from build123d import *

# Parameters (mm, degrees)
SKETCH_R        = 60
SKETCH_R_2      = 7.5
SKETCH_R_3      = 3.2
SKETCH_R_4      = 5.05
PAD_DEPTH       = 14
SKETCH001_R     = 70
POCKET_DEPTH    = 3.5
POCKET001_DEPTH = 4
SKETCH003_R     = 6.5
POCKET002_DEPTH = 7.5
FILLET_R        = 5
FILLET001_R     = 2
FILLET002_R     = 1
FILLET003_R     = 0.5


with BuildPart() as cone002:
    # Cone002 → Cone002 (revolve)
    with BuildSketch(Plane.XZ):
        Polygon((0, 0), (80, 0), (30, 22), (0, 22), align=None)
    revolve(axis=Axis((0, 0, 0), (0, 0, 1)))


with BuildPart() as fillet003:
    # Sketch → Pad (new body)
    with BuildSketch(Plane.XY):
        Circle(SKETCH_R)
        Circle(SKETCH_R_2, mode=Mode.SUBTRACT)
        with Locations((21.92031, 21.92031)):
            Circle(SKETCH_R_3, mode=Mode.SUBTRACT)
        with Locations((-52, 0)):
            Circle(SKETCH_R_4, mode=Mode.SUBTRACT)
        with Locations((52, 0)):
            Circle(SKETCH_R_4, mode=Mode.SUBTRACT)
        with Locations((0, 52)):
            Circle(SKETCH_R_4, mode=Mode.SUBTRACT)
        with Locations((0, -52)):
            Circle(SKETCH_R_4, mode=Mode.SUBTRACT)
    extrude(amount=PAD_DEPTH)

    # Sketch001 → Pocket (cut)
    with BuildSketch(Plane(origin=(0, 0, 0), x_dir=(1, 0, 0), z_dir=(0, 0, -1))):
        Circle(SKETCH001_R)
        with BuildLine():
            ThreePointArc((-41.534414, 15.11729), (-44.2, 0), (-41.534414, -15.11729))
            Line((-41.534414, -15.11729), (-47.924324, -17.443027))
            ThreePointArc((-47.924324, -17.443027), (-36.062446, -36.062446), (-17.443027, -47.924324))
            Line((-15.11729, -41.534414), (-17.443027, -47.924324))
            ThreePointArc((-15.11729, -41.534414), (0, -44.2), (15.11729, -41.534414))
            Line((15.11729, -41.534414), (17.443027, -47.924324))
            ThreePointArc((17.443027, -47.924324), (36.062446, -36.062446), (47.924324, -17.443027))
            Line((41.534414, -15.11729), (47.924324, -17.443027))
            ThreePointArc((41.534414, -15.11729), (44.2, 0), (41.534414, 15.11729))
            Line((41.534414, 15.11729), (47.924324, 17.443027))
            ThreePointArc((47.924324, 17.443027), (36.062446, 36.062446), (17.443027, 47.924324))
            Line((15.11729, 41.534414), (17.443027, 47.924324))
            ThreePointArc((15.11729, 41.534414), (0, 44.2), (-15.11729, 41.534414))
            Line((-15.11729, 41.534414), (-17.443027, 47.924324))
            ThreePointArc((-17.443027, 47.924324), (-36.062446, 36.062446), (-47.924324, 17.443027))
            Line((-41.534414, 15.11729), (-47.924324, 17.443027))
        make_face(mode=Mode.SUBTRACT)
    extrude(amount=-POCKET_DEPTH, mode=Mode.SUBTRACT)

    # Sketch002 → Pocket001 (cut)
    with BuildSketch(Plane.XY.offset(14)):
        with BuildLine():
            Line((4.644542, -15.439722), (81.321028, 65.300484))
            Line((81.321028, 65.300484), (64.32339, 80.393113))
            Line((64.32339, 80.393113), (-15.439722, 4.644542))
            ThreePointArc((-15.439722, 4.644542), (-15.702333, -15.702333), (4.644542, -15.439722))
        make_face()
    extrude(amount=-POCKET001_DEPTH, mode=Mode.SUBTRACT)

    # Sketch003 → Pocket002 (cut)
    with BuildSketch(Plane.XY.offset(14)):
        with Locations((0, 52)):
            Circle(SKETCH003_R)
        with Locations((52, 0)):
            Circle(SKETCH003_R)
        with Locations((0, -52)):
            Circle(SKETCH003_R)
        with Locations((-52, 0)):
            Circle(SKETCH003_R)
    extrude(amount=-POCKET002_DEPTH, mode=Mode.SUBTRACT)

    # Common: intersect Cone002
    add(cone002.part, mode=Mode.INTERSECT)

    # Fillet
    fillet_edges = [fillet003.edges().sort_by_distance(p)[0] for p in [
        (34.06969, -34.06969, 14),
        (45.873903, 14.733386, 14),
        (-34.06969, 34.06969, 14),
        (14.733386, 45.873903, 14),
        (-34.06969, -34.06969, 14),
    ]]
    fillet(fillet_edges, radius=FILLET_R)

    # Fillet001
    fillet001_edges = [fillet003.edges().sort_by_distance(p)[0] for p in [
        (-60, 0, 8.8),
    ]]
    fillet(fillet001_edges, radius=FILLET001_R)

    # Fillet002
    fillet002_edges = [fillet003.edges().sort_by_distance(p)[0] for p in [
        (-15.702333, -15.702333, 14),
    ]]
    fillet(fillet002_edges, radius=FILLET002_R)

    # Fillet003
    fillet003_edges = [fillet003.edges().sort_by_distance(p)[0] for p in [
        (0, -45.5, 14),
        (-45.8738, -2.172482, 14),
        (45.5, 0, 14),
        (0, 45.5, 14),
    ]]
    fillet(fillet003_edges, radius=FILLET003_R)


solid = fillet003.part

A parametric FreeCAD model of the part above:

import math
import FreeCAD as App
import Part
import Sketcher
from FreeCAD import Vector
Q = App.Units.Quantity


def edges_at(feature, points):
    """Names of the edges that pass closest to the given points."""
    edges = feature.Shape.Edges
    near = lambda p: min(range(len(edges)), key=lambda i: edges[i].distToShape(Part.Vertex(*p))[0])
    return sorted({f"Edge{near(p) + 1}" for p in points})


def add_polygon(sketch, points):
    """Adds a closed chain of lines whose ends are joined by coincident constraints."""
    first, n = sketch.GeometryCount, len(points)
    for a, b in zip(points, points[1:] + points[:1]):
        sketch.addGeometry(Part.LineSegment(App.Vector(*a, 0), App.Vector(*b, 0)), False)
    for i in range(n):
        sketch.addConstraint(Sketcher.Constraint("Coincident", first + i, 2, first + (i + 1) % n, 1))

doc = App.newDocument("Part")
body = doc.addObject("PartDesign::Body", "Body")

# Sketch on XZ plane
sketch1 = doc.addObject("Sketcher::SketchObject", "Sketch")
body.addObject(sketch1)
sketch1.AttachmentSupport = (doc.XZ_Plane, [""])
sketch1.MapMode = "FlatFace"
add_polygon(sketch1, [(0, 0), (80, 0), (30, 22), (0, 22)])  # lines 0-3
sketch1.addConstraint(Sketcher.Constraint("Horizontal", 0))
sketch1.addConstraint(Sketcher.Constraint("Horizontal", 2))
sketch1.addConstraint(Sketcher.Constraint("Vertical", 3))
sketch1.addConstraint(Sketcher.Constraint("Coincident", 3, 2, -1, 1))
sketch1.addConstraint(Sketcher.Constraint("DistanceX", 0, 1, 0, 2, Q("80 mm")))
sketch1.addConstraint(Sketcher.Constraint("DistanceX", 2, 2, 2, 1, Q("30 mm")))
sketch1.addConstraint(Sketcher.Constraint("DistanceY", 3, 2, 3, 1, Q("22 mm")))
revolution = doc.addObject("PartDesign::Revolution", "Revolution")
body.addObject(revolution)
revolution.Profile = sketch1
revolution.ReferenceAxis = (sketch1, ["V_Axis"])
revolution.Angle = 360
body2 = doc.addObject("PartDesign::Body", "Body001")

# Sketch on XY plane
sketch2 = doc.addObject("Sketcher::SketchObject", "Sketch001")
body2.addObject(sketch2)
sketch2.AttachmentSupport = (doc.getObject("XY_Plane001"), [""])
sketch2.MapMode = "FlatFace"
sketch2.addGeometry(Part.Circle(Vector(0, 0, 0), Vector(0, 0, 1), 60), False)
sketch2.addGeometry(Part.Circle(Vector(0, -52, 0), Vector(0, 0, 1), 5), False)
sketch2.addGeometry(Part.Circle(Vector(-52, 0, 0), Vector(0, 0, 1), 5), False)
sketch2.addGeometry(Part.Circle(Vector(0, 0, 0), Vector(0, 0, 1), 7.5), False)
sketch2.addGeometry(Part.Circle(Vector(21.9, 21.9, 0), Vector(0, 0, 1), 3.2), False)
sketch2.addGeometry(Part.Circle(Vector(52, 0, 0), Vector(0, 0, 1), 5), False)
sketch2.addGeometry(Part.Circle(Vector(0, 52, 0), Vector(0, 0, 1), 5), False)
sketch2.addConstraint(Sketcher.Constraint("Coincident", 0, 3, -1, 1))
sketch2.addConstraint(Sketcher.Constraint("Coincident", 3, 3, -1, 1))
sketch2.addConstraint(Sketcher.Constraint("Equal", 1, 2))
sketch2.addConstraint(Sketcher.Constraint("Equal", 2, 5))
sketch2.addConstraint(Sketcher.Constraint("Equal", 5, 6))
sketch2.addConstraint(Sketcher.Constraint("Symmetric", 2, 3, 5, 3, -1, 1))
sketch2.addConstraint(Sketcher.Constraint("Symmetric", 1, 3, 6, 3, -1, 1))
sketch2.addConstraint(Sketcher.Constraint("PointOnObject", 1, 3, -2))
sketch2.addConstraint(Sketcher.Constraint("PointOnObject", 2, 3, -1))
sketch2.addConstraint(Sketcher.Constraint("Diameter", 0, Q("120 mm")))
sketch2.addConstraint(Sketcher.Constraint("Diameter", 3, Q("15 mm")))
sketch2.addConstraint(Sketcher.Constraint("Diameter", 1, Q("10.1 mm")))
sketch2.addConstraint(Sketcher.Constraint("Diameter", 4, Q("6.4 mm")))
sketch2.addConstraint(Sketcher.Constraint("DistanceY", 1, 3, -1, 1, Q("52 mm")))
sketch2.addConstraint(Sketcher.Constraint("DistanceX", 2, 3, -1, 1, Q("52 mm")))
sketch2.addConstraint(Sketcher.Constraint("DistanceX", -1, 1, 4, 3, Q("21.92031 mm")))
sketch2.addConstraint(Sketcher.Constraint("DistanceY", -1, 1, 4, 3, Q("21.92031 mm")))
pad1 = doc.addObject("PartDesign::Pad", "Pad")
body2.addObject(pad1)
pad1.Profile = sketch2
pad1.Length = 14

# Sketch on XY plane
sketch3 = doc.addObject("Sketcher::SketchObject", "Sketch002")
body2.addObject(sketch3)
sketch3.AttachmentSupport = (doc.getObject("XY_Plane001"), [""])
sketch3.MapMode = "FlatFace"
sketch3.addGeometry(Part.Circle(Vector(0, 0, 0), Vector(0, 0, 1), 70), False)
sketch3.addGeometry(Part.ArcOfCircle(Part.Circle(Vector(0, 0, 0), Vector(0, 0, 1), 44), math.radians(160), math.radians(200)), False)
sketch3.addGeometry(Part.LineSegment(Vector(-42, -15, 0), Vector(-48, -17, 0)), False)
sketch3.addGeometry(Part.ArcOfCircle(Part.Circle(Vector(0, 0, 0), Vector(0, 0, 1), 51), math.radians(-160), math.radians(-110)), False)
sketch3.addGeometry(Part.LineSegment(Vector(-17, -48, 0), Vector(-15, -42, 0)), False)
sketch3.addGeometry(Part.ArcOfCircle(Part.Circle(Vector(0, 0, 0), Vector(0, 0, 1), 44), math.radians(-110), math.radians(-70)), False)
sketch3.addGeometry(Part.LineSegment(Vector(15, -42, 0), Vector(17, -48, 0)), False)
sketch3.addGeometry(Part.ArcOfCircle(Part.Circle(Vector(0, 0, 0), Vector(0, 0, 1), 51), math.radians(-70), math.radians(-20)), False)
sketch3.addGeometry(Part.LineSegment(Vector(48, -17, 0), Vector(42, -15, 0)), False)
sketch3.addGeometry(Part.ArcOfCircle(Part.Circle(Vector(0, 0, 0), Vector(0, 0, 1), 44), math.radians(-20), math.radians(20)), False)
sketch3.addGeometry(Part.LineSegment(Vector(42, 15, 0), Vector(48, 17, 0)), False)
sketch3.addGeometry(Part.ArcOfCircle(Part.Circle(Vector(0, 0, 0), Vector(0, 0, 1), 51), math.radians(20), math.radians(70)), False)
sketch3.addGeometry(Part.LineSegment(Vector(17, 48, 0), Vector(15, 42, 0)), False)
sketch3.addGeometry(Part.ArcOfCircle(Part.Circle(Vector(0, 0, 0), Vector(0, 0, 1), 44), math.radians(70), math.radians(110)), False)
sketch3.addGeometry(Part.LineSegment(Vector(-15, 42, 0), Vector(-17, 48, 0)), False)
sketch3.addGeometry(Part.ArcOfCircle(Part.Circle(Vector(0, 0, 0), Vector(0, 0, 1), 51), math.radians(110), math.radians(160)), False)
sketch3.addGeometry(Part.LineSegment(Vector(-48, 17, 0), Vector(-42, 15, 0)), False)
sketch3.addConstraint(Sketcher.Constraint("Coincident", 1, 2, 2, 1))
sketch3.addConstraint(Sketcher.Constraint("Coincident", 2, 2, 3, 1))
sketch3.addConstraint(Sketcher.Constraint("Coincident", 3, 2, 4, 1))
sketch3.addConstraint(Sketcher.Constraint("Coincident", 4, 2, 5, 1))
sketch3.addConstraint(Sketcher.Constraint("Coincident", 5, 2, 6, 1))
sketch3.addConstraint(Sketcher.Constraint("Coincident", 6, 2, 7, 1))
sketch3.addConstraint(Sketcher.Constraint("Coincident", 7, 2, 8, 1))
sketch3.addConstraint(Sketcher.Constraint("Coincident", 8, 2, 9, 1))
sketch3.addConstraint(Sketcher.Constraint("Coincident", 9, 2, 10, 1))
sketch3.addConstraint(Sketcher.Constraint("Coincident", 10, 2, 11, 1))
sketch3.addConstraint(Sketcher.Constraint("Coincident", 11, 2, 12, 1))
sketch3.addConstraint(Sketcher.Constraint("Coincident", 12, 2, 13, 1))
sketch3.addConstraint(Sketcher.Constraint("Coincident", 13, 2, 14, 1))
sketch3.addConstraint(Sketcher.Constraint("Coincident", 14, 2, 15, 1))
sketch3.addConstraint(Sketcher.Constraint("Coincident", 15, 2, 16, 1))
sketch3.addConstraint(Sketcher.Constraint("Coincident", 16, 2, 1, 1))
sketch3.addConstraint(Sketcher.Constraint("Coincident", 0, 3, -1, 1))
sketch3.addConstraint(Sketcher.Constraint("Coincident", 1, 3, -1, 1))
sketch3.addConstraint(Sketcher.Constraint("Coincident", 3, 3, -1, 1))
sketch3.addConstraint(Sketcher.Constraint("Coincident", 5, 3, -1, 1))
sketch3.addConstraint(Sketcher.Constraint("Coincident", 7, 3, -1, 1))
sketch3.addConstraint(Sketcher.Constraint("Coincident", 9, 3, -1, 1))
sketch3.addConstraint(Sketcher.Constraint("Coincident", 11, 3, -1, 1))
sketch3.addConstraint(Sketcher.Constraint("Coincident", 13, 3, -1, 1))
sketch3.addConstraint(Sketcher.Constraint("Coincident", 15, 3, -1, 1))
sketch3.addConstraint(Sketcher.Constraint("Equal", 1, 5))
sketch3.addConstraint(Sketcher.Constraint("Equal", 3, 7))
sketch3.addConstraint(Sketcher.Constraint("Equal", 5, 9))
sketch3.addConstraint(Sketcher.Constraint("Equal", 7, 11))
sketch3.addConstraint(Sketcher.Constraint("Equal", 9, 13))
sketch3.addConstraint(Sketcher.Constraint("Equal", 11, 15))
sketch3.addConstraint(Sketcher.Constraint("Perpendicular", 2, 6))
sketch3.addConstraint(Sketcher.Constraint("Perpendicular", 4, 8))
sketch3.addConstraint(Sketcher.Constraint("Perpendicular", 6, 10))
sketch3.addConstraint(Sketcher.Constraint("Perpendicular", 8, 12))
sketch3.addConstraint(Sketcher.Constraint("Perpendicular", 10, 14))
sketch3.addConstraint(Sketcher.Constraint("Perpendicular", 12, 16))
sketch3.addConstraint(Sketcher.Constraint("Horizontal", 4, 2, 5, 2))
sketch3.addConstraint(Sketcher.Constraint("Horizontal", 3, 2, 6, 2))
sketch3.addConstraint(Sketcher.Constraint("Horizontal", 2, 2, 7, 2))
sketch3.addConstraint(Sketcher.Constraint("Horizontal", 12, 2, 13, 2))
sketch3.addConstraint(Sketcher.Constraint("Horizontal", 10, 2, 15, 2))
sketch3.addConstraint(Sketcher.Constraint("Vertical", 8, 2, 9, 2))
sketch3.addConstraint(Sketcher.Constraint("Vertical", 6, 2, 11, 2))
sketch3.addConstraint(Sketcher.Constraint("Diameter", 0, Q("140 mm")))
sketch3.addConstraint(Sketcher.Constraint("Radius", 3, Q("51 mm")))
sketch3.addConstraint(Sketcher.Constraint("Radius", 1, Q("44.200001 mm")))
sketch3.addConstraint(Sketcher.Constraint("Angle", 2, Q("-160 deg")))
sketch3.addConstraint(Sketcher.Constraint("DistanceY", 1, 2, -1, 1, Q("15.11729 mm")))
sketch3.addConstraint(Sketcher.Constraint("DistanceX", 4, 2, -1, 1, Q("15.11729 mm")))
pocket1 = doc.addObject("PartDesign::Pocket", "Pocket")
body2.addObject(pocket1)
pocket1.Profile = sketch3
pocket1.Length = 3.5
pocket1.Reversed = True

# Sketch on XY plane
sketch4 = doc.addObject("Sketcher::SketchObject", "Sketch003")
body2.addObject(sketch4)
sketch4.AttachmentSupport = (doc.getObject("XY_Plane001"), [""])
sketch4.MapMode = "FlatFace"
sketch4.AttachmentOffset = App.Placement(Vector(0, 0, 14), App.Rotation())
sketch4.addGeometry(Part.LineSegment(Vector(5, -15, 0), Vector(81, 65, 0)), False)
sketch4.addGeometry(Part.LineSegment(Vector(81, 65, 0), Vector(64, 80, 0)), False)
sketch4.addGeometry(Part.LineSegment(Vector(64, 80, 0), Vector(-15, 5, 0)), False)
sketch4.addGeometry(Part.ArcOfCircle(Part.Circle(Vector(-6, -6, 0), Vector(0, 0, 1), 14), math.radians(134), math.radians(316)), False)
sketch4.addConstraint(Sketcher.Constraint("Coincident", 0, 2, 1, 1))
sketch4.addConstraint(Sketcher.Constraint("Coincident", 1, 2, 2, 1))
sketch4.addConstraint(Sketcher.Constraint("Coincident", 2, 2, 3, 1))
sketch4.addConstraint(Sketcher.Constraint("Coincident", 3, 2, 0, 1))
sketch4.addConstraint(Sketcher.Constraint("Distance", 2, Q("110 mm")))
sketch4.addConstraint(Sketcher.Constraint("Radius", 3, Q("14.206452 mm")))
sketch4.addConstraint(Sketcher.Constraint("DistanceX", -1, 1, 0, 2, Q("81.321028 mm")))
sketch4.addConstraint(Sketcher.Constraint("DistanceX", -1, 1, 1, 2, Q("64.32339 mm")))
sketch4.addConstraint(Sketcher.Constraint("DistanceY", 3, 3, 0, 2, Q("70.957339 mm")))
sketch4.addConstraint(Sketcher.Constraint("DistanceY", 0, 2, 1, 2, Q("15.092629 mm")))
sketch4.addConstraint(Sketcher.Constraint("DistanceY", 2, 2, 1, 2, Q("75.748571 mm")))
sketch4.addConstraint(Sketcher.Constraint("Distance", 0, Q("111.347494 mm")))
sketch4.addConstraint(Sketcher.Constraint("DistanceY", 3, 3, -1, 1, Q("5.656855 mm")))
pocket2 = doc.addObject("PartDesign::Pocket", "Pocket001")
body2.addObject(pocket2)
pocket2.Profile = sketch4
pocket2.Length = 4

# Sketch on XY plane
sketch5 = doc.addObject("Sketcher::SketchObject", "Sketch004")
body2.addObject(sketch5)
sketch5.AttachmentSupport = (doc.getObject("XY_Plane001"), [""])
sketch5.MapMode = "FlatFace"
sketch5.AttachmentOffset = App.Placement(Vector(0, 0, 14), App.Rotation())
sketch5.addGeometry(Part.Circle(Vector(0, 52, 0), Vector(0, 0, 1), 6), False)
sketch5.addGeometry(Part.Circle(Vector(52, 0, 0), Vector(0, 0, 1), 6), False)
sketch5.addGeometry(Part.Circle(Vector(0, -52, 0), Vector(0, 0, 1), 6), False)
sketch5.addGeometry(Part.Circle(Vector(-52, 0, 0), Vector(0, 0, 1), 6), False)
sketch5.addConstraint(Sketcher.Constraint("Equal", 0, 1))
sketch5.addConstraint(Sketcher.Constraint("Equal", 1, 2))
sketch5.addConstraint(Sketcher.Constraint("Equal", 2, 3))
sketch5.addConstraint(Sketcher.Constraint("Symmetric", 0, 3, 2, 3, -1, 1))
sketch5.addConstraint(Sketcher.Constraint("Symmetric", 1, 3, 3, 3, -1, 1))
sketch5.addConstraint(Sketcher.Constraint("PointOnObject", 0, 3, -2))
sketch5.addConstraint(Sketcher.Constraint("PointOnObject", 1, 3, -1))
sketch5.addConstraint(Sketcher.Constraint("Diameter", 0, Q("13 mm")))
sketch5.addConstraint(Sketcher.Constraint("DistanceY", -1, 1, 0, 3, Q("52 mm")))
sketch5.addConstraint(Sketcher.Constraint("DistanceX", -1, 1, 1, 3, Q("52 mm")))
pocket3 = doc.addObject("PartDesign::Pocket", "Pocket002")
body2.addObject(pocket3)
pocket3.Profile = sketch5
pocket3.Length = 7.5
doc.recompute()

boolean = doc.addObject("PartDesign::Boolean", "Boolean")
body2.addObject(boolean)
boolean.Type = "Common"
boolean.addObjects([body])
doc.recompute()

fillet = doc.addObject("PartDesign::Fillet", "Fillet")
body2.addObject(fillet)
fillet.Base = (boolean, edges_at(boolean, [
    (34.07, -34.07, 14),
    (45.874, 14.733, 14),
    (-34.07, 34.07, 14),
    (14.733, 45.874, 14),
    (-34.07, -34.07, 14),
]))
fillet.Radius = 5
doc.recompute()

fillet2 = doc.addObject("PartDesign::Fillet", "Fillet001")
body2.addObject(fillet2)
fillet2.Base = (fillet, edges_at(fillet, [(-60, 0, 8.8)]))
fillet2.Radius = 2
doc.recompute()

fillet3 = doc.addObject("PartDesign::Fillet", "Fillet002")
body2.addObject(fillet3)
fillet3.Base = (fillet2, edges_at(fillet2, [(-15.702, -15.702, 14)]))
fillet3.Radius = 1
doc.recompute()

fillet4 = doc.addObject("PartDesign::Fillet", "Fillet003")
body2.addObject(fillet4)
fillet4.Base = (fillet3, edges_at(fillet3, [
    (0, -45.5, 14),
    (-45.874, -2.172, 14),
    (45.5, 0, 14),
    (0, 45.5, 14),
]))
fillet4.Radius = 0.5

doc.recompute()
